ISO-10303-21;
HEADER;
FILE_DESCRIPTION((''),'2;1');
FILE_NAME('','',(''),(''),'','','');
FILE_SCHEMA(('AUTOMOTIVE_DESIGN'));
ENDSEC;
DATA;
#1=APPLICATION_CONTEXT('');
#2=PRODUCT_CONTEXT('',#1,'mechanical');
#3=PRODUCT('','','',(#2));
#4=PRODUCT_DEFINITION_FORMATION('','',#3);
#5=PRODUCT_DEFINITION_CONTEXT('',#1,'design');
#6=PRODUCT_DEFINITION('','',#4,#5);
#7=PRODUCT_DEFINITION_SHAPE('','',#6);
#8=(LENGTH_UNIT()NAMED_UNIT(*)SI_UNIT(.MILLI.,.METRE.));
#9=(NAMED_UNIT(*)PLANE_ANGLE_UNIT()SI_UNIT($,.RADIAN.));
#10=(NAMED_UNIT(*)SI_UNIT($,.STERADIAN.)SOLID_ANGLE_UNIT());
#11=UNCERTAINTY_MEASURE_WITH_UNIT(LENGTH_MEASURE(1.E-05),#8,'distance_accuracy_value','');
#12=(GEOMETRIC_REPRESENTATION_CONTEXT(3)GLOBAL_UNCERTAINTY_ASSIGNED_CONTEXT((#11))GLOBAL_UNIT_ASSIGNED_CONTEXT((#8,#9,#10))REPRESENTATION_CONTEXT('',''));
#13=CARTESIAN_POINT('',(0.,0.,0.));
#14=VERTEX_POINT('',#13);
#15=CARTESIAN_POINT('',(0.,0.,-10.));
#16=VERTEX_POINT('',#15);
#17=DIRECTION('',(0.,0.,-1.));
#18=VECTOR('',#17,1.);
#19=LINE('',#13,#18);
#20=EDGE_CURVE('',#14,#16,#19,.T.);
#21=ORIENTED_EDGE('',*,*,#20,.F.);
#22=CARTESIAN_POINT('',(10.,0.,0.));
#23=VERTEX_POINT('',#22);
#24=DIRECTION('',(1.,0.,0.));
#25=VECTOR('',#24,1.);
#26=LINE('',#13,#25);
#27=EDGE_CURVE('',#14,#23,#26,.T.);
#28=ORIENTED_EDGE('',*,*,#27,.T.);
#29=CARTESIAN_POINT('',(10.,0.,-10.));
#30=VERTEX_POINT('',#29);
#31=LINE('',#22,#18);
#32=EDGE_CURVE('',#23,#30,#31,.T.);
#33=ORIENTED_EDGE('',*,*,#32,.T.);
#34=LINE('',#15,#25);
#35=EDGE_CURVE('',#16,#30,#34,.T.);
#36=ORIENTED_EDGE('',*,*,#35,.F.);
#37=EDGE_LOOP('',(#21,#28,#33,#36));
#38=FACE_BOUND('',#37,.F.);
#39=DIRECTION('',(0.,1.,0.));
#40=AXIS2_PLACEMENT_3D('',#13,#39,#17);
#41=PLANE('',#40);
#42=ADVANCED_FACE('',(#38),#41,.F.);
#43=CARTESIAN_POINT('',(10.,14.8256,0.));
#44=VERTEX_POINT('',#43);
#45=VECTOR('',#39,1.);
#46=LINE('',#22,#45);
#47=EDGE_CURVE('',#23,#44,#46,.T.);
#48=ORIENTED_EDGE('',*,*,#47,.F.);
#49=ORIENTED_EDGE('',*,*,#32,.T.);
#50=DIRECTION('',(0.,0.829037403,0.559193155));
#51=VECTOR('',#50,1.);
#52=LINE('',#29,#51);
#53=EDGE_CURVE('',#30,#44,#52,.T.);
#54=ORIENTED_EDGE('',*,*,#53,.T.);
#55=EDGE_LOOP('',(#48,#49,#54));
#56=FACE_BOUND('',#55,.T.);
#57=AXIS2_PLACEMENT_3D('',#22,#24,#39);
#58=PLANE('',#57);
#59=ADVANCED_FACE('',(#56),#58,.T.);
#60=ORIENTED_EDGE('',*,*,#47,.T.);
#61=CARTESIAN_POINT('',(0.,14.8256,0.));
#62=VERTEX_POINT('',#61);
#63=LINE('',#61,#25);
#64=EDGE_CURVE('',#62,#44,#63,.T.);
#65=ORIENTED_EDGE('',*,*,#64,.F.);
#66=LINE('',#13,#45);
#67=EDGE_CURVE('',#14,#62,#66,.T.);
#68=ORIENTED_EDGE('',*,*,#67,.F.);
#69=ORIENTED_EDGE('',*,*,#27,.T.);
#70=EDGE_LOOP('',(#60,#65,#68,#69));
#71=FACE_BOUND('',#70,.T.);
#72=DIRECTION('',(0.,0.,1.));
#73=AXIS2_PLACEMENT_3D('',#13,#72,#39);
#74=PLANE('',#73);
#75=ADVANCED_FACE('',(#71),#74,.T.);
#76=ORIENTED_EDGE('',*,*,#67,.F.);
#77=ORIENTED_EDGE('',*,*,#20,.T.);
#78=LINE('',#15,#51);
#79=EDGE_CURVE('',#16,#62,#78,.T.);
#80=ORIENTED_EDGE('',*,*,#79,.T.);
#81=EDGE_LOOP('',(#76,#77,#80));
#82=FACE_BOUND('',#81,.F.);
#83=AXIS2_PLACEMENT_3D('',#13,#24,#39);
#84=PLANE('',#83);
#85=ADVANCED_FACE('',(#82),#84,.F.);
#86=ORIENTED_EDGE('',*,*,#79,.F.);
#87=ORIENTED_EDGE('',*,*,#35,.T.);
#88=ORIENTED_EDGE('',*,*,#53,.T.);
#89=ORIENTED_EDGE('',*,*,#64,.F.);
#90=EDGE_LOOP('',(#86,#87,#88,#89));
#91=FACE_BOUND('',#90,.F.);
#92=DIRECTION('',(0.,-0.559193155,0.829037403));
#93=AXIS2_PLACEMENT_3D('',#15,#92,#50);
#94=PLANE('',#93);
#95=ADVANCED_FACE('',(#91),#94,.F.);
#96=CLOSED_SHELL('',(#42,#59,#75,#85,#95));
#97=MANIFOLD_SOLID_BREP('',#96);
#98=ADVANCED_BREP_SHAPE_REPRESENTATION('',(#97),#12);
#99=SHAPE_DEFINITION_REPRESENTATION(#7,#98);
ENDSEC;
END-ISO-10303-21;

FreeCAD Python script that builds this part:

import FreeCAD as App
import Part
import Sketcher

V = App.Vector
Q = App.Units.Quantity

doc = App.newDocument("Part")
body = doc.addObject("PartDesign::Body", "Body")

# Sketch on YZ plane
sketch1 = body.newObject("Sketcher::SketchObject", "Sketch")
sketch1.AttachmentSupport = (doc.getObject("YZ_Plane"), [""])
sketch1.MapMode = "FlatFace"
sketch1.addGeometry([
    Part.LineSegment(V(14.8256, 0, 0), V(0, 0, 0)),
    Part.LineSegment(V(0, 0, 0), V(0, -10, 0)),
    Part.LineSegment(V(0, -10, 0), V(14.8256, 0, 0)),
], False)
sketch1.addConstraint([
    Sketcher.Constraint("Coincident", 0, 2, 1, 1),
    Sketcher.Constraint("Coincident", 1, 2, 2, 1),
    Sketcher.Constraint("Coincident", 2, 2, 0, 1),
    Sketcher.Constraint("Horizontal", 0),
    Sketcher.Constraint("Vertical", 1),
    Sketcher.Constraint("Coincident", 0, 2, -1, 1),
    Sketcher.Constraint("DistanceY", 1, 2, 1, 1, 10.0),
    Sketcher.Constraint("Angle", 2, Q("34 deg")),
])
pad1 = body.newObject("PartDesign::Pad", "Pad")
pad1.Profile = sketch1
pad1.Length = 10

doc.recompute()
